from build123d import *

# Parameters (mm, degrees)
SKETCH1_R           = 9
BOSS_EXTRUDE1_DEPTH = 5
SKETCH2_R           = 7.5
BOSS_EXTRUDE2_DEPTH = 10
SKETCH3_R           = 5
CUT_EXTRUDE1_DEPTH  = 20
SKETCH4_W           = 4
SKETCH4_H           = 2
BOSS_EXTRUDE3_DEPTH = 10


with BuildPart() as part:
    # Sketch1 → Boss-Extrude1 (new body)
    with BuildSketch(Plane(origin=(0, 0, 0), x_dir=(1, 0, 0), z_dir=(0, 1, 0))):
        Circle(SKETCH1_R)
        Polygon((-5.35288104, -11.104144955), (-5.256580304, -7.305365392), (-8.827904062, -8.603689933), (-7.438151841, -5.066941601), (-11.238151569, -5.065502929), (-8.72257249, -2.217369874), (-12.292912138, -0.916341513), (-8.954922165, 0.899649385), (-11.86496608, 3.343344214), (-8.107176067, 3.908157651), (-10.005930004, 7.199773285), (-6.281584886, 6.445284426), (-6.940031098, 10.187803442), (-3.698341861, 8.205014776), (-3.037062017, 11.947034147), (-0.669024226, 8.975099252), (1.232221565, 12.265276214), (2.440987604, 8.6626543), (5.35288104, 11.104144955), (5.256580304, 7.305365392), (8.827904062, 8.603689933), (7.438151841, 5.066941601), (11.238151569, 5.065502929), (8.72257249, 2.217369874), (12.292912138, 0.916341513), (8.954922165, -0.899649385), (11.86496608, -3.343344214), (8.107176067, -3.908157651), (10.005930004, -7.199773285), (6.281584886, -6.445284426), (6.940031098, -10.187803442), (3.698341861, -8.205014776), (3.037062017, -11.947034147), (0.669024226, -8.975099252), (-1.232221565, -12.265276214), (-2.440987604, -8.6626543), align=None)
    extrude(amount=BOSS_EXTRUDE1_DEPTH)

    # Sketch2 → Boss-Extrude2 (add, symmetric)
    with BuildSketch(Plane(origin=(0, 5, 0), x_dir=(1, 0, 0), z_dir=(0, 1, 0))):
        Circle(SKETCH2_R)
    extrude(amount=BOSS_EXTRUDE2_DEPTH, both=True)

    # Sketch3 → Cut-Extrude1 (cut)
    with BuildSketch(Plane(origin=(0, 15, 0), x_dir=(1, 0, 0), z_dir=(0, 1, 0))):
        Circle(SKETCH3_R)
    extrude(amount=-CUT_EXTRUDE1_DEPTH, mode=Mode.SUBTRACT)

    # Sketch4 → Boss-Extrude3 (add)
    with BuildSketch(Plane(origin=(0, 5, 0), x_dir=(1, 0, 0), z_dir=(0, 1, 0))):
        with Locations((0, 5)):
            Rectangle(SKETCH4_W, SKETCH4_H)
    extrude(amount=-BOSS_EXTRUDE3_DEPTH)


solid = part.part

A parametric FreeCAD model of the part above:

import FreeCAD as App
import Part
import Sketcher
Q = App.Units.Quantity

doc = App.newDocument("Part")
body = doc.addObject("PartDesign::Body", "Body")

sketch1 = doc.addObject("Sketcher::SketchObject", "Sketch")
body.addObject(sketch1)
sketch1.AttachmentSupport = (doc.XZ_Plane, [""])
sketch1.MapMode = "FlatFace"
sketch1.addGeometry(Part.LineSegment(App.Vector(9, 0.9, 0), App.Vector(12.3, -0.9, 0)), False)
sketch1.addGeometry(Part.LineSegment(App.Vector(12.3, -0.9, 0), App.Vector(8.7, -2.2, 0)), False)
sketch1.addGeometry(Part.LineSegment(App.Vector(8.7, -2.2, 0), App.Vector(11.2, -5.1, 0)), False)
sketch1.addGeometry(Part.LineSegment(App.Vector(11.2, -5.1, 0), App.Vector(7.4, -5.1, 0)), False)
sketch1.addGeometry(Part.LineSegment(App.Vector(7.4, -5.1, 0), App.Vector(8.8, -8.6, 0)), False)
sketch1.addGeometry(Part.LineSegment(App.Vector(8.8, -8.6, 0), App.Vector(5.3, -7.3, 0)), False)
sketch1.addGeometry(Part.LineSegment(App.Vector(5.3, -7.3, 0), App.Vector(5.4, -11.1, 0)), False)
sketch1.addGeometry(Part.LineSegment(App.Vector(5.4, -11.1, 0), App.Vector(2.4, -8.7, 0)), False)
sketch1.addGeometry(Part.LineSegment(App.Vector(2.4, -8.7, 0), App.Vector(1.2, -12.3, 0)), False)
sketch1.addGeometry(Part.LineSegment(App.Vector(1.2, -12.3, 0), App.Vector(-0.7, -9, 0)), False)
sketch1.addGeometry(Part.LineSegment(App.Vector(-0.7, -9, 0), App.Vector(-3, -11.9, 0)), False)
sketch1.addGeometry(Part.LineSegment(App.Vector(-3, -11.9, 0), App.Vector(-3.7, -8.2, 0)), False)
sketch1.addGeometry(Part.LineSegment(App.Vector(-3.7, -8.2, 0), App.Vector(-6.9, -10.2, 0)), False)
sketch1.addGeometry(Part.LineSegment(App.Vector(-6.9, -10.2, 0), App.Vector(-6.3, -6.4, 0)), False)
sketch1.addGeometry(Part.LineSegment(App.Vector(-6.3, -6.4, 0), App.Vector(-10, -7.2, 0)), False)
sketch1.addGeometry(Part.LineSegment(App.Vector(-10, -7.2, 0), App.Vector(-8.1, -3.9, 0)), False)
sketch1.addGeometry(Part.LineSegment(App.Vector(-8.1, -3.9, 0), App.Vector(-11.9, -3.3, 0)), False)
sketch1.addGeometry(Part.LineSegment(App.Vector(-11.9, -3.3, 0), App.Vector(-9, -0.9, 0)), False)
sketch1.addGeometry(Part.LineSegment(App.Vector(-9, -0.9, 0), App.Vector(-12.3, 0.9, 0)), False)
sketch1.addGeometry(Part.LineSegment(App.Vector(-12.3, 0.9, 0), App.Vector(-8.7, 2.2, 0)), False)
sketch1.addGeometry(Part.LineSegment(App.Vector(-8.7, 2.2, 0), App.Vector(-11.2, 5.1, 0)), False)
sketch1.addGeometry(Part.LineSegment(App.Vector(-11.2, 5.1, 0), App.Vector(-7.4, 5.1, 0)), False)
sketch1.addGeometry(Part.LineSegment(App.Vector(-7.4, 5.1, 0), App.Vector(-8.8, 8.6, 0)), False)
sketch1.addGeometry(Part.LineSegment(App.Vector(-8.8, 8.6, 0), App.Vector(-5.3, 7.3, 0)), False)
sketch1.addGeometry(Part.LineSegment(App.Vector(-5.3, 7.3, 0), App.Vector(-5.4, 11.1, 0)), False)
sketch1.addGeometry(Part.LineSegment(App.Vector(-5.4, 11.1, 0), App.Vector(-2.4, 8.7, 0)), False)
sketch1.addGeometry(Part.LineSegment(App.Vector(-2.4, 8.7, 0), App.Vector(-1.2, 12.3, 0)), False)
sketch1.addGeometry(Part.LineSegment(App.Vector(-1.2, 12.3, 0), App.Vector(0.7, 9, 0)), False)
sketch1.addGeometry(Part.LineSegment(App.Vector(0.7, 9, 0), App.Vector(3, 11.9, 0)), False)
sketch1.addGeometry(Part.LineSegment(App.Vector(3, 11.9, 0), App.Vector(3.7, 8.2, 0)), False)
sketch1.addGeometry(Part.LineSegment(App.Vector(3.7, 8.2, 0), App.Vector(6.9, 10.2, 0)), False)
sketch1.addGeometry(Part.LineSegment(App.Vector(6.9, 10.2, 0), App.Vector(6.3, 6.4, 0)), False)
sketch1.addGeometry(Part.LineSegment(App.Vector(6.3, 6.4, 0), App.Vector(10, 7.2, 0)), False)
sketch1.addGeometry(Part.LineSegment(App.Vector(10, 7.2, 0), App.Vector(8.1, 3.9, 0)), False)
sketch1.addGeometry(Part.LineSegment(App.Vector(8.1, 3.9, 0), App.Vector(11.9, 3.3, 0)), False)
sketch1.addGeometry(Part.LineSegment(App.Vector(11.9, 3.3, 0), App.Vector(9, 0.9, 0)), False)
sketch1.addConstraint(Sketcher.Constraint("Coincident", 0, 2, 1, 1))
sketch1.addConstraint(Sketcher.Constraint("Coincident", 1, 2, 2, 1))
sketch1.addConstraint(Sketcher.Constraint("Coincident", 2, 2, 3, 1))
sketch1.addConstraint(Sketcher.Constraint("Coincident", 3, 2, 4, 1))
sketch1.addConstraint(Sketcher.Constraint("Coincident", 4, 2, 5, 1))
sketch1.addConstraint(Sketcher.Constraint("Coincident", 5, 2, 6, 1))
sketch1.addConstraint(Sketcher.Constraint("Coincident", 6, 2, 7, 1))
sketch1.addConstraint(Sketcher.Constraint("Coincident", 7, 2, 8, 1))
sketch1.addConstraint(Sketcher.Constraint("Coincident", 8, 2, 9, 1))
sketch1.addConstraint(Sketcher.Constraint("Coincident", 9, 2, 10, 1))
sketch1.addConstraint(Sketcher.Constraint("Coincident", 10, 2, 11, 1))
sketch1.addConstraint(Sketcher.Constraint("Coincident", 11, 2, 12, 1))
sketch1.addConstraint(Sketcher.Constraint("Coincident", 12, 2, 13, 1))
sketch1.addConstraint(Sketcher.Constraint("Coincident", 13, 2, 14, 1))
sketch1.addConstraint(Sketcher.Constraint("Coincident", 14, 2, 15, 1))
sketch1.addConstraint(Sketcher.Constraint("Coincident", 15, 2, 16, 1))
sketch1.addConstraint(Sketcher.Constraint("Coincident", 16, 2, 17, 1))
sketch1.addConstraint(Sketcher.Constraint("Coincident", 17, 2, 18, 1))
sketch1.addConstraint(Sketcher.Constraint("Coincident", 18, 2, 19, 1))
sketch1.addConstraint(Sketcher.Constraint("Coincident", 19, 2, 20, 1))
sketch1.addConstraint(Sketcher.Constraint("Coincident", 20, 2, 21, 1))
sketch1.addConstraint(Sketcher.Constraint("Coincident", 21, 2, 22, 1))
sketch1.addConstraint(Sketcher.Constraint("Coincident", 22, 2, 23, 1))
sketch1.addConstraint(Sketcher.Constraint("Coincident", 23, 2, 24, 1))
sketch1.addConstraint(Sketcher.Constraint("Coincident", 24, 2, 25, 1))
sketch1.addConstraint(Sketcher.Constraint("Coincident", 25, 2, 26, 1))
sketch1.addConstraint(Sketcher.Constraint("Coincident", 26, 2, 27, 1))
sketch1.addConstraint(Sketcher.Constraint("Coincident", 27, 2, 28, 1))
sketch1.addConstraint(Sketcher.Constraint("Coincident", 28, 2, 29, 1))
sketch1.addConstraint(Sketcher.Constraint("Coincident", 29, 2, 30, 1))
sketch1.addConstraint(Sketcher.Constraint("Coincident", 30, 2, 31, 1))
sketch1.addConstraint(Sketcher.Constraint("Coincident", 31, 2, 32, 1))
sketch1.addConstraint(Sketcher.Constraint("Coincident", 32, 2, 33, 1))
sketch1.addConstraint(Sketcher.Constraint("Coincident", 33, 2, 34, 1))
sketch1.addConstraint(Sketcher.Constraint("Coincident", 34, 2, 35, 1))
sketch1.addConstraint(Sketcher.Constraint("Coincident", 35, 2, 0, 1))
sketch1.addConstraint(Sketcher.Constraint("Symmetric", 0, 2, 18, 2, -1, 1))
sketch1.addConstraint(Sketcher.Constraint("Symmetric", 1, 2, 19, 2, -1, 1))
sketch1.addConstraint(Sketcher.Constraint("Symmetric", 2, 2, 20, 2, -1, 1))
sketch1.addConstraint(Sketcher.Constraint("Symmetric", 3, 2, 21, 2, -1, 1))
sketch1.addConstraint(Sketcher.Constraint("Symmetric", 4, 2, 22, 2, -1, 1))
sketch1.addConstraint(Sketcher.Constraint("Symmetric", 5, 2, 23, 2, -1, 1))
sketch1.addConstraint(Sketcher.Constraint("Symmetric", 6, 2, 24, 2, -1, 1))
sketch1.addConstraint(Sketcher.Constraint("Symmetric", 7, 2, 25, 2, -1, 1))
sketch1.addConstraint(Sketcher.Constraint("Symmetric", 8, 2, 26, 2, -1, 1))
sketch1.addConstraint(Sketcher.Constraint("Symmetric", 9, 2, 27, 2, -1, 1))
sketch1.addConstraint(Sketcher.Constraint("Symmetric", 10, 2, 28, 2, -1, 1))
sketch1.addConstraint(Sketcher.Constraint("Symmetric", 11, 2, 29, 2, -1, 1))
sketch1.addConstraint(Sketcher.Constraint("Symmetric", 12, 2, 30, 2, -1, 1))
sketch1.addConstraint(Sketcher.Constraint("Symmetric", 13, 2, 31, 2, -1, 1))
sketch1.addConstraint(Sketcher.Constraint("Symmetric", 14, 2, 32, 2, -1, 1))
sketch1.addConstraint(Sketcher.Constraint("Symmetric", 15, 2, 33, 2, -1, 1))
sketch1.addConstraint(Sketcher.Constraint("Symmetric", 16, 2, 34, 2, -1, 1))
sketch1.addConstraint(Sketcher.Constraint("Symmetric", 17, 2, 35, 2, -1, 1))
sketch1.addConstraint(Sketcher.Constraint("Equal", 0, 1))
sketch1.addConstraint(Sketcher.Constraint("Equal", 1, 2))
sketch1.addConstraint(Sketcher.Constraint("Equal", 2, 3))
sketch1.addConstraint(Sketcher.Constraint("Equal", 3, 4))
sketch1.addConstraint(Sketcher.Constraint("Equal", 4, 5))
sketch1.addConstraint(Sketcher.Constraint("Equal", 5, 6))
sketch1.addConstraint(Sketcher.Constraint("Equal", 6, 7))
sketch1.addConstraint(Sketcher.Constraint("Equal", 7, 8))
sketch1.addConstraint(Sketcher.Constraint("Equal", 8, 9))
sketch1.addConstraint(Sketcher.Constraint("Equal", 9, 10))
sketch1.addConstraint(Sketcher.Constraint("Equal", 10, 11))
sketch1.addConstraint(Sketcher.Constraint("Equal", 11, 12))
sketch1.addConstraint(Sketcher.Constraint("Equal", 12, 13))
sketch1.addConstraint(Sketcher.Constraint("Equal", 13, 14))
sketch1.addConstraint(Sketcher.Constraint("Equal", 14, 15))
sketch1.addConstraint(Sketcher.Constraint("Equal", 15, 16))
sketch1.addConstraint(Sketcher.Constraint("Equal", 16, 17))
sketch1.addConstraint(Sketcher.Constraint("Distance", 0, Q("3.8 mm")))
sketch1.addConstraint(Sketcher.Constraint("DistanceY", 9, 2, -1, 1, Q("8.975099 mm")))
sketch1.addConstraint(Sketcher.Constraint("DistanceY", 3, 2, 0, 2, Q("4.1506 mm")))
sketch1.addConstraint(Sketcher.Constraint("DistanceX", 5, 2, 6, 2, Q("0.096301 mm")))
sketch1.addConstraint(Sketcher.Constraint("DistanceX", 14, 2, 12, 2, Q("3.065899 mm")))
sketch1.addConstraint(Sketcher.Constraint("DistanceY", 15, 2, 18, 2, Q("4.824499 mm")))
sketch1.addConstraint(Sketcher.Constraint("DistanceY", 0, 2, -1, 1, Q("0.916342 mm")))
sketch1.addConstraint(Sketcher.Constraint("DistanceY", 1, 2, -1, 1, Q("2.21737 mm")))
sketch1.addConstraint(Sketcher.Constraint("DistanceX", -1, 1, 2, 2, Q("11.238152 mm")))
sketch1.addConstraint(Sketcher.Constraint("DistanceY", 4, 2, -1, 1, Q("8.60369 mm")))
sketch1.addConstraint(Sketcher.Constraint("DistanceX", -1, 1, 5, 2, Q("5.25658 mm")))
sketch1.addConstraint(Sketcher.Constraint("DistanceX", -1, 1, 8, 2, Q("1.232222 mm")))
sketch1.addConstraint(Sketcher.Constraint("DistanceX", 11, 2, -1, 1, Q("3.698342 mm")))
sketch1.addConstraint(Sketcher.Constraint("DistanceX", 12, 2, -1, 1, Q("6.940031 mm")))
sketch1.addConstraint(Sketcher.Constraint("DistanceY", 17, 2, -1, 1, Q("0.899649 mm")))
sketch1.addConstraint(Sketcher.Constraint("DistanceX", 1, 2, 2, 2, Q("2.515579 mm")))
sketch1.addConstraint(Sketcher.Constraint("DistanceY", 7, 2, 5, 2, Q("1.357289 mm")))
sketch1.addConstraint(Sketcher.Constraint("DistanceX", 10, 2, 7, 2, Q("5.47805 mm")))
sketch1.addConstraint(Sketcher.Constraint("DistanceY", 11, 2, 13, 2, Q("1.75973 mm")))
pad1 = doc.addObject("PartDesign::Pad", "Pad")
body.addObject(pad1)
pad1.Profile = sketch1
pad1.Length = 5
pad1.Reversed = True

sketch2 = doc.addObject("Sketcher::SketchObject", "Sketch001")
body.addObject(sketch2)
sketch2.AttachmentSupport = (doc.XZ_Plane, [""])
sketch2.MapMode = "FlatFace"
sketch2.AttachmentOffset = App.Placement(App.Vector(0, 0, -5), App.Rotation())
sketch2.addGeometry(Part.Circle(App.Vector(0, 0, 0), App.Vector(0, 0, 1), 8), False)
sketch2.addConstraint(Sketcher.Constraint("Coincident", 0, 3, -1, 1))
sketch2.addConstraint(Sketcher.Constraint("Diameter", 0, Q("15 mm")))
pad2 = doc.addObject("PartDesign::Pad", "Pad001")
body.addObject(pad2)
pad2.Profile = sketch2
pad2.Length = 20
pad2.Midplane = True

sketch3 = doc.addObject("Sketcher::SketchObject", "Sketch002")
body.addObject(sketch3)
sketch3.AttachmentSupport = (doc.XZ_Plane, [""])
sketch3.MapMode = "FlatFace"
sketch3.AttachmentOffset = App.Placement(App.Vector(0, 0, -15), App.Rotation())
sketch3.addGeometry(Part.Circle(App.Vector(0, 0, 0), App.Vector(0, 0, 1), 5), False)
sketch3.addConstraint(Sketcher.Constraint("Coincident", 0, 3, -1, 1))
sketch3.addConstraint(Sketcher.Constraint("Diameter", 0, Q("10 mm")))
pocket1 = doc.addObject("PartDesign::Pocket", "Pocket")
body.addObject(pocket1)
pocket1.Profile = sketch3
pocket1.Length = 20
pocket1.Reversed = True

sketch4 = doc.addObject("Sketcher::SketchObject", "Sketch003")
body.addObject(sketch4)
sketch4.AttachmentSupport = (doc.XZ_Plane, [""])
sketch4.MapMode = "FlatFace"
sketch4.AttachmentOffset = App.Placement(App.Vector(0, 0, -5), App.Rotation())
sketch4.addGeometry(Part.LineSegment(App.Vector(-2, -6, 0), App.Vector(-2, -4, 0)), False)
sketch4.addGeometry(Part.LineSegment(App.Vector(-2, -4, 0), App.Vector(2, -4, 0)), False)
sketch4.addGeometry(Part.LineSegment(App.Vector(2, -4, 0), App.Vector(2, -6, 0)), False)
sketch4.addGeometry(Part.LineSegment(App.Vector(2, -6, 0), App.Vector(-2, -6, 0)), False)
sketch4.addConstraint(Sketcher.Constraint("Coincident", 0, 2, 1, 1))
sketch4.addConstraint(Sketcher.Constraint("Coincident", 1, 2, 2, 1))
sketch4.addConstraint(Sketcher.Constraint("Coincident", 2, 2, 3, 1))
sketch4.addConstraint(Sketcher.Constraint("Coincident", 3, 2, 0, 1))
sketch4.addConstraint(Sketcher.Constraint("Vertical", 0))
sketch4.addConstraint(Sketcher.Constraint("Horizontal", 1))
sketch4.addConstraint(Sketcher.Constraint("Vertical", 2))
sketch4.addConstraint(Sketcher.Constraint("Horizontal", 3))
sketch4.addConstraint(Sketcher.Constraint("DistanceX", 1, 1, 1, 2, Q("4 mm")))
sketch4.addConstraint(Sketcher.Constraint("DistanceY", 0, 1, 0, 2, Q("2 mm")))
sketch4.addConstraint(Sketcher.Constraint("DistanceX", 0, 2, -1, 1, Q("2 mm")))
sketch4.addConstraint(Sketcher.Constraint("DistanceY", 0, 2, -1, 1, Q("4 mm")))
pad3 = doc.addObject("PartDesign::Pad", "Pad002")
body.addObject(pad3)
pad3.Profile = sketch4
pad3.Length = 10

doc.recompute()
